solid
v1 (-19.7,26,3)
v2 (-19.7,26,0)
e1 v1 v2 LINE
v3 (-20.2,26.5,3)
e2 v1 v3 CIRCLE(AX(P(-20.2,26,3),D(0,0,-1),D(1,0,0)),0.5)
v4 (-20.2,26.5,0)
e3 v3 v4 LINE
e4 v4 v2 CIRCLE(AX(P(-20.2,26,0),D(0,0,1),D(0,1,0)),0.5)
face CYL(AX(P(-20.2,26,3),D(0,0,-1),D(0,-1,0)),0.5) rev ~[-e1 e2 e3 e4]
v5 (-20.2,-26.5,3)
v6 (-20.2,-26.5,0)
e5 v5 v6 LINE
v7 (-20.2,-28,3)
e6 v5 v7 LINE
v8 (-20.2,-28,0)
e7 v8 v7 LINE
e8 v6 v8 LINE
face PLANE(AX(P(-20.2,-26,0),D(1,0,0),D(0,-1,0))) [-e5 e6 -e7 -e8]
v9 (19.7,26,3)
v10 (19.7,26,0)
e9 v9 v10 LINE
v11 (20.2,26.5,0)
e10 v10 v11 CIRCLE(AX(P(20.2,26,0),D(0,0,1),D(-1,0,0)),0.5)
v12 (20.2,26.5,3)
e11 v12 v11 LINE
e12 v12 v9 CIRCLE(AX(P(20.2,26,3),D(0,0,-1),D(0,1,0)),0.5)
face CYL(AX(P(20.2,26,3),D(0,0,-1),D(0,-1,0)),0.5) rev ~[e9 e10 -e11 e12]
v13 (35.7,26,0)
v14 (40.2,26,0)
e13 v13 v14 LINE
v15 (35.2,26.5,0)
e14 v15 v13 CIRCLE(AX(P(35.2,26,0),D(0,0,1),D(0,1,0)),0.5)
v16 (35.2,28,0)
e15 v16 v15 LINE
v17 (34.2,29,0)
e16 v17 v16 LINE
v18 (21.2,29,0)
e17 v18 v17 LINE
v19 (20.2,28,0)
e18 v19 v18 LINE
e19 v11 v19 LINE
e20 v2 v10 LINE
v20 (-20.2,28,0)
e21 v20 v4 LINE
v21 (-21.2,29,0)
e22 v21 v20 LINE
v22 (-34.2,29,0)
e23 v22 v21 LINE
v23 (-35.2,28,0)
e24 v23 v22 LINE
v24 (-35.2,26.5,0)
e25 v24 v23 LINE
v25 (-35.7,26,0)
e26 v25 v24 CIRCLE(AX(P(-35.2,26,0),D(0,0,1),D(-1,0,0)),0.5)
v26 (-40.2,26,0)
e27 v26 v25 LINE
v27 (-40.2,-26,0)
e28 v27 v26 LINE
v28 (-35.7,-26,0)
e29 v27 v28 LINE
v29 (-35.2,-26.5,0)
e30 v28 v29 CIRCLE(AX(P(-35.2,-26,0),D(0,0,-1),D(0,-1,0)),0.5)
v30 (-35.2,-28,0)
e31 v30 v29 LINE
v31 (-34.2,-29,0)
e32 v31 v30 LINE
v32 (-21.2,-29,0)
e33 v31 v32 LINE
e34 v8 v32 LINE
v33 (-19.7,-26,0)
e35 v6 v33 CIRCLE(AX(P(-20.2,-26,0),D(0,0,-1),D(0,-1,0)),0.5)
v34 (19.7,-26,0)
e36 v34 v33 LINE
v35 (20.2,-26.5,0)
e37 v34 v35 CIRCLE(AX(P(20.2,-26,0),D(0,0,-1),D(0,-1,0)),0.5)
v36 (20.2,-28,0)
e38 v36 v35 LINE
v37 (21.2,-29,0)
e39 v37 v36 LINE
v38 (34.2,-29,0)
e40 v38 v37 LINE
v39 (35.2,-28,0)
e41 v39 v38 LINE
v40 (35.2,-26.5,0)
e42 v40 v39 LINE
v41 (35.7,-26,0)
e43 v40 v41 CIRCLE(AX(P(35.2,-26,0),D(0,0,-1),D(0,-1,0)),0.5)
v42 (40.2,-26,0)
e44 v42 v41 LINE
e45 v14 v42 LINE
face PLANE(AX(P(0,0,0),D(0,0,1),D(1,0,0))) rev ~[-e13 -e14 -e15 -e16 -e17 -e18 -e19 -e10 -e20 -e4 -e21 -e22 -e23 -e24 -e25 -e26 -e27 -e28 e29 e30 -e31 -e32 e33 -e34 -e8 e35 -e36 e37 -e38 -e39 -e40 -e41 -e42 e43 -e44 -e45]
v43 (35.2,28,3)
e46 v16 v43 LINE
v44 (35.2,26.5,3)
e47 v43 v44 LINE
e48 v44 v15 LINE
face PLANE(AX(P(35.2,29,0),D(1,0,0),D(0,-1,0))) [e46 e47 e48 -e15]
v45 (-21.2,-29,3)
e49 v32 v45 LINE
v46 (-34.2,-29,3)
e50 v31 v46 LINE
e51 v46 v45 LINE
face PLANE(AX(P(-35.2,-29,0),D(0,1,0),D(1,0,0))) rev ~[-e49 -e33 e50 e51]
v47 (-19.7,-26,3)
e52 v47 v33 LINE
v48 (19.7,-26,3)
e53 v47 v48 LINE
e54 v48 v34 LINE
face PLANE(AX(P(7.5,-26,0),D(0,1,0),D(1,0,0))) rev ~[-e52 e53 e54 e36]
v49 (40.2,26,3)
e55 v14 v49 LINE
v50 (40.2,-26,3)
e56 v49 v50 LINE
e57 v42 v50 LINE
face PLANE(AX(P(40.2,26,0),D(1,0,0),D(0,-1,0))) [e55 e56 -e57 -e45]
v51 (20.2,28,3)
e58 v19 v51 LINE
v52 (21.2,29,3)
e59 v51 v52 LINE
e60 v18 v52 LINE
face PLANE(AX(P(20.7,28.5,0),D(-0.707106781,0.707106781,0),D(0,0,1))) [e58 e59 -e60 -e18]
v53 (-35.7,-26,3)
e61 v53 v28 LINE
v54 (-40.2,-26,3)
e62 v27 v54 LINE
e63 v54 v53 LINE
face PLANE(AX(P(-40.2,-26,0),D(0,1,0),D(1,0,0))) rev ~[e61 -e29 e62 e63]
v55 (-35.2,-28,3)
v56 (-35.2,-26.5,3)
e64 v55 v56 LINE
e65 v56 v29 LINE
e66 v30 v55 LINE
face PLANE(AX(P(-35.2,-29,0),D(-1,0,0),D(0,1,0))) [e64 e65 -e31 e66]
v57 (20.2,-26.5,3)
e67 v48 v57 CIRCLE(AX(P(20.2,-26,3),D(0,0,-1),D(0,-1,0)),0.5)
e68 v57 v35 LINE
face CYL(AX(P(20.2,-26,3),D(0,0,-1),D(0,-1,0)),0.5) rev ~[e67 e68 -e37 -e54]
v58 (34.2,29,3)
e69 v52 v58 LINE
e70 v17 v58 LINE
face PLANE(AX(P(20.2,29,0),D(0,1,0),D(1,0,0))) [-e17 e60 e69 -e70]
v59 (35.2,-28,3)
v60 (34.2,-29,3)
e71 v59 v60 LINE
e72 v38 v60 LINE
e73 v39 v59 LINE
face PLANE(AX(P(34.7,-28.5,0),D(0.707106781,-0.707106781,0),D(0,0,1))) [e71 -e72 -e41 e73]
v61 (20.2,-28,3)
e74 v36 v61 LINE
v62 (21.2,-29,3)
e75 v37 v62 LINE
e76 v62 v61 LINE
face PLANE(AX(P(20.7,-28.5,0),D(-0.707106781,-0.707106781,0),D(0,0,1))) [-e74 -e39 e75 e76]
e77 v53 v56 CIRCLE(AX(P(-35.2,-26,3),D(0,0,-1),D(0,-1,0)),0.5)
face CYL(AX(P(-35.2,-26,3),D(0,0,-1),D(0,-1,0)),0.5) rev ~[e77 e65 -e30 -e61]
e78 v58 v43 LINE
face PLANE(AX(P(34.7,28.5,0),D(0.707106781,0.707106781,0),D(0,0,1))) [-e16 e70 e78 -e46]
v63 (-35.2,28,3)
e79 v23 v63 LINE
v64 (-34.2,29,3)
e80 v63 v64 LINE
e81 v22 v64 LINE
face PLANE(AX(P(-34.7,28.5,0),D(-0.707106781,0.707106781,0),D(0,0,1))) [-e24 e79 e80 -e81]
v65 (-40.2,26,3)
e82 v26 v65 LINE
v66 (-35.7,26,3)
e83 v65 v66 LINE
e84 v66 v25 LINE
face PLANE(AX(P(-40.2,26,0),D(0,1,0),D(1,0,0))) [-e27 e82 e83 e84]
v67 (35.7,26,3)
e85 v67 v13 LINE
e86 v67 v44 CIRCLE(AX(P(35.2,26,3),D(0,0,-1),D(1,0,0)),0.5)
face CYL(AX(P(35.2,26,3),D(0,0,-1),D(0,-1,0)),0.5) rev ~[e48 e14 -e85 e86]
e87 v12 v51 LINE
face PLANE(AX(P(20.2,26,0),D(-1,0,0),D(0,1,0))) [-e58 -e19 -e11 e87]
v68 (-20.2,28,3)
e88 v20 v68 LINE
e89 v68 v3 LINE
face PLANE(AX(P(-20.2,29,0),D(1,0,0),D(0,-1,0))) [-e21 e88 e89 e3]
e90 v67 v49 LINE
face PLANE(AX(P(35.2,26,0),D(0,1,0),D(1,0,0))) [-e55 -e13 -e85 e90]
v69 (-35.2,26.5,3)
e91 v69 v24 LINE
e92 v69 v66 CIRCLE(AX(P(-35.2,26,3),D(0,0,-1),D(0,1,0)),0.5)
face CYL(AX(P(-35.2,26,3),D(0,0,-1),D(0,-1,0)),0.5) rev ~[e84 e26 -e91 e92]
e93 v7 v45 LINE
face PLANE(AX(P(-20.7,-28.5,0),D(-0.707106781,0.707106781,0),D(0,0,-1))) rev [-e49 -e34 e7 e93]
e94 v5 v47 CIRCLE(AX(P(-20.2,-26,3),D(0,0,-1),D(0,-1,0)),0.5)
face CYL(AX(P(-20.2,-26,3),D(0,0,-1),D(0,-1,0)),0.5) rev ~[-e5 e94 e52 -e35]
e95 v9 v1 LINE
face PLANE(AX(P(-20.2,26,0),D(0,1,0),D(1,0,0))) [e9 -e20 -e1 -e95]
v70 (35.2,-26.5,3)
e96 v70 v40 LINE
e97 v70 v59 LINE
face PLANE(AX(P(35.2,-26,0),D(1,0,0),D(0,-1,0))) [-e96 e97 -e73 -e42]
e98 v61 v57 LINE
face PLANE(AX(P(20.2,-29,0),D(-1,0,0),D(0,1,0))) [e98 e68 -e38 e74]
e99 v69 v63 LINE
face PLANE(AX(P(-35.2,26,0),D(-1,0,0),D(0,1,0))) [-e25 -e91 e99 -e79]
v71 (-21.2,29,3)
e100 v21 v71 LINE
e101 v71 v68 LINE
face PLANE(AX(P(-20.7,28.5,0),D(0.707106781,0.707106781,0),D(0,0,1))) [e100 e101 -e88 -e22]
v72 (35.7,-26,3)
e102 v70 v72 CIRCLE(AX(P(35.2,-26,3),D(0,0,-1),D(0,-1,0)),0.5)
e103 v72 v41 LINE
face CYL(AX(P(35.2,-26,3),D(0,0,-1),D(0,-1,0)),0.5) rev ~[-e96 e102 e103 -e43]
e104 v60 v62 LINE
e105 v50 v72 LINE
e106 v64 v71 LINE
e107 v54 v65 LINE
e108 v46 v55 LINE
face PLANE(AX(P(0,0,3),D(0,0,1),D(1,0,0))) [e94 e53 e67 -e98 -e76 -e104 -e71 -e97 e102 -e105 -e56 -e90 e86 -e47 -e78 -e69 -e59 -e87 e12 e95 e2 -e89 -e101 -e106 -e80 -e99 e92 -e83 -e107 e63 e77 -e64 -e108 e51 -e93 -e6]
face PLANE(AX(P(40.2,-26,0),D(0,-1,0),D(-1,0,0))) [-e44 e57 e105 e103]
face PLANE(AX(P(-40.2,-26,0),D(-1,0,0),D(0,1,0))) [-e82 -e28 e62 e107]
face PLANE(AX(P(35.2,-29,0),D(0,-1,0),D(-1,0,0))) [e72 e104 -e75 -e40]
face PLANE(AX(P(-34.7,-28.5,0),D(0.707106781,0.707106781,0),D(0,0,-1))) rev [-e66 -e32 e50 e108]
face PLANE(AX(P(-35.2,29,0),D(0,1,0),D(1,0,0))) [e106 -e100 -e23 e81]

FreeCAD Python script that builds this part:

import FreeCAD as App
import Part
import Sketcher

V = App.Vector
Q = App.Units.Quantity


def edges_at(feature, points):
    """Names of the edges that pass closest to the given points."""
    edges = feature.Shape.Edges
    near = lambda p: min(range(len(edges)), key=lambda i: edges[i].distToShape(Part.Vertex(*p))[0])
    return sorted({f"Edge{near(p) + 1}" for p in points})


def add_polygon(sketch, points):
    """Adds a closed chain of lines whose ends are joined by coincident constraints."""
    first, n = sketch.GeometryCount, len(points)
    for a, b in zip(points, points[1:] + points[:1]):
        sketch.addGeometry(Part.LineSegment(App.Vector(*a, 0), App.Vector(*b, 0)), False)
    for i in range(n):
        sketch.addConstraint(Sketcher.Constraint("Coincident", first + i, 2, first + (i + 1) % n, 1))

doc = App.newDocument("Part")
params = doc.addObject("Spreadsheet::Sheet", "Params")
for row, (alias, value) in enumerate([
    ("sketch1_width", "5 mm"),
    ("sketch1_width2", "15 mm"),
    ("sketch1_height", "52 mm"),
    ("sketch1_height2", "3 mm"),
    ("sketch1_width3", "40.4 mm"),
    ("pad1_length", "3 mm"),
    ("chamfer_size", "1 mm"),
    ("sketch2_diameter", "1 mm"),
    ("hole_diameter", "1 mm"),
], start=1):
    params.set(f"A{row}", alias)
    params.set(f"B{row}", "=" + value)
    params.setAlias(f"B{row}", alias)

body = doc.addObject("PartDesign::Body", "Body")

# Sketch on XY plane
sketch1 = doc.addObject("Sketcher::SketchObject", "Sketch")
body.addObject(sketch1)
sketch1.AttachmentSupport = (doc.XY_Plane, [""])
sketch1.MapMode = "FlatFace"
add_polygon(sketch1, [(-40.2, 26), (-40.2, -26), (-35.2, -26), (-35.2, -29), (-20.2, -29), (-20.2, -26), (20.2, -26), (20.2, -29), (35.2, -29), (35.2, -26), (40.2, -26), (40.2, 26), (35.2, 26), (35.2, 29), (20.2, 29), (20.2, 26), (-20.2, 26), (-20.2, 29), (-35.2, 29), (-35.2, 26)])  # lines 0-19
sketch1.addConstraint([
    Sketcher.Constraint("Vertical", 0),
    Sketcher.Constraint("Horizontal", 1),
    Sketcher.Constraint("Vertical", 2),
    Sketcher.Constraint("Horizontal", 3),
    Sketcher.Constraint("Vertical", 4),
    Sketcher.Constraint("Horizontal", 5),
    Sketcher.Constraint("Vertical", 6),
    Sketcher.Constraint("Horizontal", 7),
    Sketcher.Constraint("Vertical", 8),
    Sketcher.Constraint("Horizontal", 9),
    Sketcher.Constraint("Vertical", 10),
    Sketcher.Constraint("Horizontal", 11),
    Sketcher.Constraint("Vertical", 12),
    Sketcher.Constraint("Horizontal", 13),
    Sketcher.Constraint("Vertical", 14),
    Sketcher.Constraint("Horizontal", 15),
    Sketcher.Constraint("Vertical", 16),
    Sketcher.Constraint("Horizontal", 17),
    Sketcher.Constraint("Vertical", 18),
    Sketcher.Constraint("Horizontal", 19),
    Sketcher.Constraint("Symmetric", 0, 2, 10, 2, -1, 1),
    Sketcher.Constraint("Symmetric", 2, 2, 12, 2, -1, 1),
    Sketcher.Constraint("Symmetric", 4, 2, 14, 2, -1, 1),
    Sketcher.Constraint("Symmetric", 6, 2, 16, 2, -1, 1),
    Sketcher.Constraint("Symmetric", 8, 2, 18, 2, -1, 1),
    Sketcher.Constraint("Symmetric", 3, 2, 6, 2, -2),
    Sketcher.Constraint("Symmetric", 1, 2, 8, 2, -2),
    Sketcher.Constraint("Horizontal", 1, 2, 4, 2),
    Sketcher.Constraint("DistanceX", 1, 1, 1, 2, Q("5 mm")),
    Sketcher.Constraint("DistanceX", 3, 1, 3, 2, Q("15 mm")),
    Sketcher.Constraint("DistanceY", 0, 2, 0, 1, Q("52 mm")),
    Sketcher.Constraint("DistanceY", 2, 2, 2, 1, Q("3 mm")),
    Sketcher.Constraint("DistanceX", 5, 1, 5, 2, Q("40.4 mm")),
])
sketch1.setExpression("Constraints[48]", "Params.sketch1_width")
sketch1.setExpression("Constraints[49]", "Params.sketch1_width2")
sketch1.setExpression("Constraints[50]", "Params.sketch1_height")
sketch1.setExpression("Constraints[51]", "Params.sketch1_height2")
sketch1.setExpression("Constraints[52]", "Params.sketch1_width3")
pad1 = doc.addObject("PartDesign::Pad", "Pad")
body.addObject(pad1)
pad1.Profile = sketch1
pad1.setExpression("Length", "Params.pad1_length")
doc.recompute()

chamfer = doc.addObject("PartDesign::Chamfer", "Chamfer")
body.addObject(chamfer)
chamfer.Base = (pad1, edges_at(pad1, [
    (-20.2, 29, 1.5),
    (-35.2, 29, 1.5),
    (20.2, 29, 1.5),
    (35.2, 29, 1.5),
    (35.2, -29, 1.5),
    (20.2, -29, 1.5),
    (-20.2, -29, 1.5),
    (-35.2, -29, 1.5),
]))
chamfer.setExpression("Size", "Params.chamfer_size")

# Sketch on XY plane
sketch2 = doc.addObject("Sketcher::SketchObject", "Sketch001")
body.addObject(sketch2)
sketch2.AttachmentSupport = (doc.XY_Plane, [""])
sketch2.MapMode = "FlatFace"
sketch2.AttachmentOffset = App.Placement(V(0, 0, 3), App.Rotation())
sketch2.addGeometry([
    Part.Circle(V(-35.2, 26, 0), V(0, 0, 1), 0.5),  # 0
    Part.Circle(V(-20.2, 26, 0), V(0, 0, 1), 0.5),  # 1
    Part.Circle(V(20.2, 26, 0), V(0, 0, 1), 0.5),  # 2
    Part.Circle(V(35.2, 26, 0), V(0, 0, 1), 0.5),  # 3
    Part.Circle(V(-35.2, -26, 0), V(0, 0, 1), 0.5),  # 4
    Part.Circle(V(-20.2, -26, 0), V(0, 0, 1), 0.5),  # 5
    Part.Circle(V(20.2, -26, 0), V(0, 0, 1), 0.5),  # 6
    Part.Circle(V(35.2, -26, 0), V(0, 0, 1), 0.5),  # 7
], False)
sketch2.addConstraint([
    Sketcher.Constraint("Equal", 0, 1),
    Sketcher.Constraint("Equal", 1, 2),
    Sketcher.Constraint("Equal", 2, 3),
    Sketcher.Constraint("Equal", 3, 4),
    Sketcher.Constraint("Equal", 4, 5),
    Sketcher.Constraint("Equal", 5, 6),
    Sketcher.Constraint("Equal", 6, 7),
    Sketcher.Constraint("Symmetric", 3, 3, 4, 3, -1, 1),
    Sketcher.Constraint("Symmetric", 2, 3, 5, 3, -1, 1),
    Sketcher.Constraint("Symmetric", 1, 3, 6, 3, -1, 1),
    Sketcher.Constraint("Symmetric", 0, 3, 7, 3, -1, 1),
    Sketcher.Constraint("Symmetric", 1, 3, 2, 3, -2),
    Sketcher.Constraint("Symmetric", 0, 3, 3, 3, -2),
    Sketcher.Constraint("Horizontal", 0, 3, 1, 3),
    Sketcher.Constraint("Diameter", 0, Q("1 mm")),
    Sketcher.Constraint("DistanceY", -1, 1, 0, 3, Q("26 mm")),
    Sketcher.Constraint("DistanceX", 0, 3, 1, 3, Q("15 mm")),
    Sketcher.Constraint("DistanceX", 0, 3, -1, 1, Q("35.2 mm")),
])
sketch2.setExpression("Constraints[14]", "Params.sketch2_diameter")
doc.recompute()
hole = doc.addObject("PartDesign::Hole", "Hole")
body.addObject(hole)
hole.Profile = sketch2
hole.ThreadType = "None"
hole.setExpression("Diameter", "Params.hole_diameter")
hole.DepthType = "ThroughAll"

doc.recompute()
